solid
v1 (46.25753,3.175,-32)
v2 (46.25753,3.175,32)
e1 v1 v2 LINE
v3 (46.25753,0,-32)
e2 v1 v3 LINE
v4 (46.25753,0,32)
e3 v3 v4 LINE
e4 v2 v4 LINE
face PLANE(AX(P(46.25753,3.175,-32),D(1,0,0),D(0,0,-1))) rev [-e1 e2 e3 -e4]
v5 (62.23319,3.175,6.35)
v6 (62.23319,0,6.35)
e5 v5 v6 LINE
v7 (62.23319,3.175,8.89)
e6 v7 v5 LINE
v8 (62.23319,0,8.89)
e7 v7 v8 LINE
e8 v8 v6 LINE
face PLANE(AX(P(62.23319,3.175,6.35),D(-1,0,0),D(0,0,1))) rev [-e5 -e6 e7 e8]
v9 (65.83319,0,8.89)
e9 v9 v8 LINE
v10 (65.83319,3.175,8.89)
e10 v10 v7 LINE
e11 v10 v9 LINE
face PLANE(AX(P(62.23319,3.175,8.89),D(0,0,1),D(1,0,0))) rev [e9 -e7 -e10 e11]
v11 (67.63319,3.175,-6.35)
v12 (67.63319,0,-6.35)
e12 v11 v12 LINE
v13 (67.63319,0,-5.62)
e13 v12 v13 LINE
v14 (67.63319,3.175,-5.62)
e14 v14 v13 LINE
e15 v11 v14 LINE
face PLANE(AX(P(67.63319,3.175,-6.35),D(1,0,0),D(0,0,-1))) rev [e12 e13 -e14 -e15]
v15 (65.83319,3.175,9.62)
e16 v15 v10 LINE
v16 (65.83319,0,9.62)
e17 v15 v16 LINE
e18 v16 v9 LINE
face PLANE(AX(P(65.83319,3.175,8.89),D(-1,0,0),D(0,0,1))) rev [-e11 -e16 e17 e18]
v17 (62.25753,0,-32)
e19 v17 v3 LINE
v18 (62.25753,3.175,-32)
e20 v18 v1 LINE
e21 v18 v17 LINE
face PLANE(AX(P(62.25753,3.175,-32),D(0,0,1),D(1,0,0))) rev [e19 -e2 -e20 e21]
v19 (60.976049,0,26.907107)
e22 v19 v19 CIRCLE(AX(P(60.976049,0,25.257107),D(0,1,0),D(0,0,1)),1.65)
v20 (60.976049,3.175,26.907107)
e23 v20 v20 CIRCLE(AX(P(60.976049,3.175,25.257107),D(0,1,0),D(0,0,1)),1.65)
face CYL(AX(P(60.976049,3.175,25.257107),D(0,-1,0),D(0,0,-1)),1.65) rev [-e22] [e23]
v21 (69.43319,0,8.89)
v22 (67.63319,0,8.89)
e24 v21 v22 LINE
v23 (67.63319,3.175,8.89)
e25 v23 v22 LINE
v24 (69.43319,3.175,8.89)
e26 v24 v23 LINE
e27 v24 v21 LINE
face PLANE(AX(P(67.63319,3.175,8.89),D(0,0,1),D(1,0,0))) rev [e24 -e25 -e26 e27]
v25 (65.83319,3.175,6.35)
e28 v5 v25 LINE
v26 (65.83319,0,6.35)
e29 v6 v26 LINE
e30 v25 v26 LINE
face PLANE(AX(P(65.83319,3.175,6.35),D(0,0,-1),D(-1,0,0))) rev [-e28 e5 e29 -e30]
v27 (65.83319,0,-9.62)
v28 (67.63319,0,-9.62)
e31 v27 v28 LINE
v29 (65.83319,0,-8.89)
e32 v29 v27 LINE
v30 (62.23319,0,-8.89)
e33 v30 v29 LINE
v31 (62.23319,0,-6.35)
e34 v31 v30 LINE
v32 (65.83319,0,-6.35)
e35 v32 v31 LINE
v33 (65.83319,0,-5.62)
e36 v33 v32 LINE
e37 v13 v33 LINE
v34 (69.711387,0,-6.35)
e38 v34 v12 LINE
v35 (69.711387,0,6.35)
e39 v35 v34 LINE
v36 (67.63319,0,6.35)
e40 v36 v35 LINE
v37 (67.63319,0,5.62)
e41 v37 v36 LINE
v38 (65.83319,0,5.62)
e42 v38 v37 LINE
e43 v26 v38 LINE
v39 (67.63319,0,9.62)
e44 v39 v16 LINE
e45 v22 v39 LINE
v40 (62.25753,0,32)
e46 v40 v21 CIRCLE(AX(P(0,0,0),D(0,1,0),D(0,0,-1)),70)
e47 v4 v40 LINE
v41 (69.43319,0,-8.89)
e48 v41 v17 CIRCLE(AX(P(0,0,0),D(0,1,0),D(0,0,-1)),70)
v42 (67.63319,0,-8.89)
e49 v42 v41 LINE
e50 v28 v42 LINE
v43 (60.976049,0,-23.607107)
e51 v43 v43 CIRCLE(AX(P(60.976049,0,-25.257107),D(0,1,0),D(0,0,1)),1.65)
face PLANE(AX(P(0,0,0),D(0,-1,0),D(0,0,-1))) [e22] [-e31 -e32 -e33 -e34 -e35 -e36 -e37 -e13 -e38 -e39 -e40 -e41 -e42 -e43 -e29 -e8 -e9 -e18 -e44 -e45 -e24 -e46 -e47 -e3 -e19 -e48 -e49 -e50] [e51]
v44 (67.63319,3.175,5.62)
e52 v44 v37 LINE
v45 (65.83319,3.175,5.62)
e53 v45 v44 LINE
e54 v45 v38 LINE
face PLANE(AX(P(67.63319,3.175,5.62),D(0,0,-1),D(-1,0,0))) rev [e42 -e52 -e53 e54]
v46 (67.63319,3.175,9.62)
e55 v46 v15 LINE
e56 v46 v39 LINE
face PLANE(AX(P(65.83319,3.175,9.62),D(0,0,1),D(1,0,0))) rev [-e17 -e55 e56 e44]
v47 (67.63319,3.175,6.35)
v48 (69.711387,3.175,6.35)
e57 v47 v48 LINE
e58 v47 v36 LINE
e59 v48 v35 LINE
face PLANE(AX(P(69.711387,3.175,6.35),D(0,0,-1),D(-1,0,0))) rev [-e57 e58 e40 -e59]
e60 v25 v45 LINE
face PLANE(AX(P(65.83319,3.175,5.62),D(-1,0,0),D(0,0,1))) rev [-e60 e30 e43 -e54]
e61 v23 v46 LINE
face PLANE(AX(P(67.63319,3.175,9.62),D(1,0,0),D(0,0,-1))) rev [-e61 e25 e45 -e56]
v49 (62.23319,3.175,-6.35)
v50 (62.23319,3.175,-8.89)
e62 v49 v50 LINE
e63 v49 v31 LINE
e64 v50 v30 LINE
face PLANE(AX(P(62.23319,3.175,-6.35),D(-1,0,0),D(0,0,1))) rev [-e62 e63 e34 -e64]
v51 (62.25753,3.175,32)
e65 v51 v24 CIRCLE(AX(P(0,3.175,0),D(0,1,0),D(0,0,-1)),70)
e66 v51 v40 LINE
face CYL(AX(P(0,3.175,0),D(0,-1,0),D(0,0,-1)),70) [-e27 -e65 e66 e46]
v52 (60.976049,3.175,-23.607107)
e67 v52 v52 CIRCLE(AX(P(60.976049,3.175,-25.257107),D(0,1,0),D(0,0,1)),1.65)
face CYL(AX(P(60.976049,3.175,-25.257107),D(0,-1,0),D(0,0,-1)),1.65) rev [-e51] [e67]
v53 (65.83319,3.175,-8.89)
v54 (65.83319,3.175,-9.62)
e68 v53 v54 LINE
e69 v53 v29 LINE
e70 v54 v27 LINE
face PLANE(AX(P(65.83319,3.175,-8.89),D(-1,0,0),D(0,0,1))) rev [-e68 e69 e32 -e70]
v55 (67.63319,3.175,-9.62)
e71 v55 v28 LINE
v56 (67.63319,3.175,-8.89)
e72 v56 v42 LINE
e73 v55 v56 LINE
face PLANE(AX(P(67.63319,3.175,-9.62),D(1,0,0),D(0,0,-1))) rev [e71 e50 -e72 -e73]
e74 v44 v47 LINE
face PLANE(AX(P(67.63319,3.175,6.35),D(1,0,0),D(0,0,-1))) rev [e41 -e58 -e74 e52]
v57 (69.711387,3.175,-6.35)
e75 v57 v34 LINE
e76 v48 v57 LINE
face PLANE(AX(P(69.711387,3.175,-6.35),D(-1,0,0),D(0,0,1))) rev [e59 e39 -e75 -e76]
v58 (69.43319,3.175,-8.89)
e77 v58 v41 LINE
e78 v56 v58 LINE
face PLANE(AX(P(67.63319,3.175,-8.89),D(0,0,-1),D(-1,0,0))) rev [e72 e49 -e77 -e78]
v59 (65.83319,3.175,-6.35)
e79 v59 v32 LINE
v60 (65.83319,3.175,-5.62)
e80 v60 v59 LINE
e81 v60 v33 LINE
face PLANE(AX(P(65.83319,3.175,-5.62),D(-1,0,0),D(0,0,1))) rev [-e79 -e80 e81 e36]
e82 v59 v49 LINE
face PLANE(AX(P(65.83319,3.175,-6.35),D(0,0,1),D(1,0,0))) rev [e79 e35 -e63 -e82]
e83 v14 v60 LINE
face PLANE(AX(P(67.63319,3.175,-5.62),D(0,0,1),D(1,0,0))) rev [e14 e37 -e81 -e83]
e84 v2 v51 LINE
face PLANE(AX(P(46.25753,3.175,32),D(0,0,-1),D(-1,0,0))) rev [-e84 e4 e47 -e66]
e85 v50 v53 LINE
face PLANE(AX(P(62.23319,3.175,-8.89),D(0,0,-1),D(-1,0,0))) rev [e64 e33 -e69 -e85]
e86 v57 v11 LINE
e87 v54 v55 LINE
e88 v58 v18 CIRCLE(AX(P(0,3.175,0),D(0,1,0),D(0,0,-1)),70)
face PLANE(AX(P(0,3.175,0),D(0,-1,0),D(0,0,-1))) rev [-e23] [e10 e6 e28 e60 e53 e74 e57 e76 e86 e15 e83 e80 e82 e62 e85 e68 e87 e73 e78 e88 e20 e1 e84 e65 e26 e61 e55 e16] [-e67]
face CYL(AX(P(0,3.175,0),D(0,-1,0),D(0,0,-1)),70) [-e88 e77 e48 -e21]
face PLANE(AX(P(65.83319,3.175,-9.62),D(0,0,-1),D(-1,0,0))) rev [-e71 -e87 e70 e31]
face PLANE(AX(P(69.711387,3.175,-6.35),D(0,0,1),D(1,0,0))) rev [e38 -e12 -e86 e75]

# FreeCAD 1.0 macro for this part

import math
import FreeCAD as App
import Part
import Sketcher
from FreeCAD import Vector

doc = App.newDocument("Part")
body = doc.addObject("PartDesign::Body", "Body")

sketch1 = body.newObject("Sketcher::SketchObject", "Sketch")
sketch1.AttachmentSupport = (doc.getObject("XZ_Plane"), [""])
sketch1.MapMode = "FlatFace"
sketch1.addGeometry(Part.LineSegment(Vector(62.25753, -32, 0), Vector(46.25753, -32, 0)), False)
sketch1.addGeometry(Part.LineSegment(Vector(46.25753, -32, 0), Vector(46.25753, 32, 0)), False)
sketch1.addGeometry(Part.LineSegment(Vector(46.25753, 32, 0), Vector(62.25753, 32, 0)), False)
sketch1.addGeometry(Part.ArcOfCircle(Part.Circle(Vector(0, 0, 0), Vector(0, 0, 1), 70), math.radians(7.296268), math.radians(27.202894)), False)
sketch1.addGeometry(Part.LineSegment(Vector(69.43319, 8.89, 0), Vector(67.63319, 8.89, 0)), False)
sketch1.addGeometry(Part.LineSegment(Vector(67.63319, 8.89, 0), Vector(67.63319, 9.62, 0)), False)
sketch1.addGeometry(Part.LineSegment(Vector(67.63319, 9.62, 0), Vector(65.83319, 9.62, 0)), False)
sketch1.addGeometry(Part.LineSegment(Vector(65.83319, 9.62, 0), Vector(65.83319, 8.89, 0)), False)
sketch1.addGeometry(Part.LineSegment(Vector(65.83319, 8.89, 0), Vector(62.23319, 8.89, 0)), False)
sketch1.addGeometry(Part.LineSegment(Vector(62.23319, 8.89, 0), Vector(62.23319, 6.35, 0)), False)
sketch1.addGeometry(Part.LineSegment(Vector(62.23319, 6.35, 0), Vector(65.83319, 6.35, 0)), False)
sketch1.addGeometry(Part.LineSegment(Vector(65.83319, 6.35, 0), Vector(65.83319, 5.62, 0)), False)
sketch1.addGeometry(Part.LineSegment(Vector(65.83319, 5.62, 0), Vector(67.63319, 5.62, 0)), False)
sketch1.addGeometry(Part.LineSegment(Vector(67.63319, 5.62, 0), Vector(67.63319, 6.35, 0)), False)
sketch1.addGeometry(Part.LineSegment(Vector(67.63319, 6.35, 0), Vector(69.711387, 6.35, 0)), False)
sketch1.addGeometry(Part.LineSegment(Vector(69.711387, 6.35, 0), Vector(69.711387, -6.35, 0)), False)
sketch1.addGeometry(Part.LineSegment(Vector(69.711387, -6.35, 0), Vector(67.63319, -6.35, 0)), False)
sketch1.addGeometry(Part.LineSegment(Vector(67.63319, -6.35, 0), Vector(67.63319, -5.62, 0)), False)
sketch1.addGeometry(Part.LineSegment(Vector(67.63319, -5.62, 0), Vector(65.83319, -5.62, 0)), False)
sketch1.addGeometry(Part.LineSegment(Vector(65.83319, -5.62, 0), Vector(65.83319, -6.35, 0)), False)
sketch1.addGeometry(Part.LineSegment(Vector(65.83319, -6.35, 0), Vector(62.23319, -6.35, 0)), False)
sketch1.addGeometry(Part.LineSegment(Vector(62.23319, -6.35, 0), Vector(62.23319, -8.89, 0)), False)
sketch1.addGeometry(Part.LineSegment(Vector(62.23319, -8.89, 0), Vector(65.83319, -8.89, 0)), False)
sketch1.addGeometry(Part.LineSegment(Vector(65.83319, -8.89, 0), Vector(65.83319, -9.62, 0)), False)
sketch1.addGeometry(Part.LineSegment(Vector(65.83319, -9.62, 0), Vector(67.63319, -9.62, 0)), False)
sketch1.addGeometry(Part.LineSegment(Vector(67.63319, -9.62, 0), Vector(67.63319, -8.89, 0)), False)
sketch1.addGeometry(Part.LineSegment(Vector(67.63319, -8.89, 0), Vector(69.43319, -8.89, 0)), False)
sketch1.addGeometry(Part.ArcOfCircle(Part.Circle(Vector(0, 0, 0), Vector(0, 0, 1), 70), math.radians(-27.202894), math.radians(-7.296268)), False)
sketch1.addGeometry(Part.Circle(Vector(60.976049, 25.257107, 0), Vector(0, 0, 1), 1.65), False)
sketch1.addGeometry(Part.Circle(Vector(60.976049, -25.257107, 0), Vector(0, 0, 1), 1.65), False)
sketch1.addConstraint(Sketcher.Constraint("Coincident", 0, 2, 1, 1))
sketch1.addConstraint(Sketcher.Constraint("Coincident", 1, 2, 2, 1))
sketch1.addConstraint(Sketcher.Constraint("Coincident", 2, 2, 3, 2))
sketch1.addConstraint(Sketcher.Constraint("Coincident", 3, 1, 4, 1))
sketch1.addConstraint(Sketcher.Constraint("Coincident", 4, 2, 5, 1))
sketch1.addConstraint(Sketcher.Constraint("Coincident", 5, 2, 6, 1))
sketch1.addConstraint(Sketcher.Constraint("Coincident", 6, 2, 7, 1))
sketch1.addConstraint(Sketcher.Constraint("Coincident", 7, 2, 8, 1))
sketch1.addConstraint(Sketcher.Constraint("Coincident", 8, 2, 9, 1))
sketch1.addConstraint(Sketcher.Constraint("Coincident", 9, 2, 10, 1))
sketch1.addConstraint(Sketcher.Constraint("Coincident", 10, 2, 11, 1))
sketch1.addConstraint(Sketcher.Constraint("Coincident", 11, 2, 12, 1))
sketch1.addConstraint(Sketcher.Constraint("Coincident", 12, 2, 13, 1))
sketch1.addConstraint(Sketcher.Constraint("Coincident", 13, 2, 14, 1))
sketch1.addConstraint(Sketcher.Constraint("Coincident", 14, 2, 15, 1))
sketch1.addConstraint(Sketcher.Constraint("Coincident", 15, 2, 16, 1))
sketch1.addConstraint(Sketcher.Constraint("Coincident", 16, 2, 17, 1))
sketch1.addConstraint(Sketcher.Constraint("Coincident", 17, 2, 18, 1))
sketch1.addConstraint(Sketcher.Constraint("Coincident", 18, 2, 19, 1))
sketch1.addConstraint(Sketcher.Constraint("Coincident", 19, 2, 20, 1))
sketch1.addConstraint(Sketcher.Constraint("Coincident", 20, 2, 21, 1))
sketch1.addConstraint(Sketcher.Constraint("Coincident", 21, 2, 22, 1))
sketch1.addConstraint(Sketcher.Constraint("Coincident", 22, 2, 23, 1))
sketch1.addConstraint(Sketcher.Constraint("Coincident", 23, 2, 24, 1))
sketch1.addConstraint(Sketcher.Constraint("Coincident", 24, 2, 25, 1))
sketch1.addConstraint(Sketcher.Constraint("Coincident", 25, 2, 26, 1))
sketch1.addConstraint(Sketcher.Constraint("Coincident", 26, 2, 27, 2))
sketch1.addConstraint(Sketcher.Constraint("Coincident", 27, 1, 0, 1))
sketch1.addConstraint(Sketcher.Constraint("Horizontal", 0))
sketch1.addConstraint(Sketcher.Constraint("Vertical", 1))
sketch1.addConstraint(Sketcher.Constraint("Horizontal", 2))
sketch1.addConstraint(Sketcher.Constraint("Horizontal", 4))
sketch1.addConstraint(Sketcher.Constraint("Vertical", 5))
sketch1.addConstraint(Sketcher.Constraint("Horizontal", 6))
sketch1.addConstraint(Sketcher.Constraint("Vertical", 7))
sketch1.addConstraint(Sketcher.Constraint("Horizontal", 8))
sketch1.addConstraint(Sketcher.Constraint("Vertical", 9))
sketch1.addConstraint(Sketcher.Constraint("Horizontal", 10))
sketch1.addConstraint(Sketcher.Constraint("Vertical", 11))
sketch1.addConstraint(Sketcher.Constraint("Horizontal", 12))
sketch1.addConstraint(Sketcher.Constraint("Vertical", 13))
sketch1.addConstraint(Sketcher.Constraint("Horizontal", 14))
sketch1.addConstraint(Sketcher.Constraint("Vertical", 15))
sketch1.addConstraint(Sketcher.Constraint("Horizontal", 16))
sketch1.addConstraint(Sketcher.Constraint("Vertical", 17))
sketch1.addConstraint(Sketcher.Constraint("Horizontal", 18))
sketch1.addConstraint(Sketcher.Constraint("Vertical", 19))
sketch1.addConstraint(Sketcher.Constraint("Horizontal", 20))
sketch1.addConstraint(Sketcher.Constraint("Vertical", 21))
sketch1.addConstraint(Sketcher.Constraint("Horizontal", 22))
sketch1.addConstraint(Sketcher.Constraint("Vertical", 23))
sketch1.addConstraint(Sketcher.Constraint("Horizontal", 24))
sketch1.addConstraint(Sketcher.Constraint("Vertical", 25))
sketch1.addConstraint(Sketcher.Constraint("Horizontal", 26))
sketch1.addConstraint(Sketcher.Constraint("Coincident", 3, 3, -1, 1))
sketch1.addConstraint(Sketcher.Constraint("Coincident", 27, 3, -1, 1))
sketch1.addConstraint(Sketcher.Constraint("Equal", 3, 27))
sketch1.addConstraint(Sketcher.Constraint("Equal", 28, 29))
sketch1.addConstraint(Sketcher.Constraint("Symmetric", 28, 3, 29, 3, -1))
sketch1.addConstraint(Sketcher.Constraint("Symmetric", 13, 2, 16, 2, -1))
sketch1.addConstraint(Sketcher.Constraint("Symmetric", 11, 2, 18, 2, -1))
sketch1.addConstraint(Sketcher.Constraint("Symmetric", 9, 2, 20, 2, -1))
sketch1.addConstraint(Sketcher.Constraint("Symmetric", 7, 2, 22, 2, -1))
sketch1.addConstraint(Sketcher.Constraint("Symmetric", 5, 2, 24, 2, -1))
sketch1.addConstraint(Sketcher.Constraint("Horizontal", 4, 2, 7, 2))
sketch1.addConstraint(Sketcher.Constraint("Horizontal", 10, 2, 13, 2))
sketch1.addConstraint(Sketcher.Constraint("Horizontal", 22, 2, 25, 2))
sketch1.addConstraint(Sketcher.Constraint("Vertical", 7, 2, 10, 2))
sketch1.addConstraint(Sketcher.Constraint("Vertical", 5, 2, 12, 2))
sketch1.addConstraint(Sketcher.Constraint("Vertical", 2, 2, 27, 1))
sketch1.addConstraint(Sketcher.Constraint("Equal", 4, 6))
sketch1.addConstraint(Sketcher.Constraint("Equal", 7, 11))
sketch1.addConstraint(Sketcher.Constraint("Radius", 3, 70.0))
sketch1.addConstraint(Sketcher.Constraint("Diameter", 28, 3.3))
sketch1.addConstraint(Sketcher.Constraint("DistanceX", 0, 2, 0, 1, 16.0))
sketch1.addConstraint(Sketcher.Constraint("DistanceY", 1, 1, 1, 2, 64.0))
sketch1.addConstraint(Sketcher.Constraint("DistanceX", 4, 2, 4, 1, 1.8))
sketch1.addConstraint(Sketcher.Constraint("DistanceX", 8, 2, 8, 1, 3.6))
sketch1.addConstraint(Sketcher.Constraint("DistanceY", 15, 2, 15, 1, 12.7))
sketch1.addConstraint(Sketcher.Constraint("DistanceY", 11, 2, 6, 2, 4.0))
sketch1.addConstraint(Sketcher.Constraint("DistanceY", 5, 1, 5, 2, 0.73))
sketch1.addConstraint(Sketcher.Constraint("DistanceX", 14, 1, 14, 2, 2.078197))
sketch1.addConstraint(Sketcher.Constraint("DistanceX", -1, 1, 28, 3, 60.976049))
sketch1.addConstraint(Sketcher.Constraint("DistanceY", -1, 1, 28, 3, 25.257107))
pad1 = body.newObject("PartDesign::Pad", "Pad")
pad1.Profile = sketch1
pad1.Length = 3.175
pad1.Reversed = True

doc.recompute()
